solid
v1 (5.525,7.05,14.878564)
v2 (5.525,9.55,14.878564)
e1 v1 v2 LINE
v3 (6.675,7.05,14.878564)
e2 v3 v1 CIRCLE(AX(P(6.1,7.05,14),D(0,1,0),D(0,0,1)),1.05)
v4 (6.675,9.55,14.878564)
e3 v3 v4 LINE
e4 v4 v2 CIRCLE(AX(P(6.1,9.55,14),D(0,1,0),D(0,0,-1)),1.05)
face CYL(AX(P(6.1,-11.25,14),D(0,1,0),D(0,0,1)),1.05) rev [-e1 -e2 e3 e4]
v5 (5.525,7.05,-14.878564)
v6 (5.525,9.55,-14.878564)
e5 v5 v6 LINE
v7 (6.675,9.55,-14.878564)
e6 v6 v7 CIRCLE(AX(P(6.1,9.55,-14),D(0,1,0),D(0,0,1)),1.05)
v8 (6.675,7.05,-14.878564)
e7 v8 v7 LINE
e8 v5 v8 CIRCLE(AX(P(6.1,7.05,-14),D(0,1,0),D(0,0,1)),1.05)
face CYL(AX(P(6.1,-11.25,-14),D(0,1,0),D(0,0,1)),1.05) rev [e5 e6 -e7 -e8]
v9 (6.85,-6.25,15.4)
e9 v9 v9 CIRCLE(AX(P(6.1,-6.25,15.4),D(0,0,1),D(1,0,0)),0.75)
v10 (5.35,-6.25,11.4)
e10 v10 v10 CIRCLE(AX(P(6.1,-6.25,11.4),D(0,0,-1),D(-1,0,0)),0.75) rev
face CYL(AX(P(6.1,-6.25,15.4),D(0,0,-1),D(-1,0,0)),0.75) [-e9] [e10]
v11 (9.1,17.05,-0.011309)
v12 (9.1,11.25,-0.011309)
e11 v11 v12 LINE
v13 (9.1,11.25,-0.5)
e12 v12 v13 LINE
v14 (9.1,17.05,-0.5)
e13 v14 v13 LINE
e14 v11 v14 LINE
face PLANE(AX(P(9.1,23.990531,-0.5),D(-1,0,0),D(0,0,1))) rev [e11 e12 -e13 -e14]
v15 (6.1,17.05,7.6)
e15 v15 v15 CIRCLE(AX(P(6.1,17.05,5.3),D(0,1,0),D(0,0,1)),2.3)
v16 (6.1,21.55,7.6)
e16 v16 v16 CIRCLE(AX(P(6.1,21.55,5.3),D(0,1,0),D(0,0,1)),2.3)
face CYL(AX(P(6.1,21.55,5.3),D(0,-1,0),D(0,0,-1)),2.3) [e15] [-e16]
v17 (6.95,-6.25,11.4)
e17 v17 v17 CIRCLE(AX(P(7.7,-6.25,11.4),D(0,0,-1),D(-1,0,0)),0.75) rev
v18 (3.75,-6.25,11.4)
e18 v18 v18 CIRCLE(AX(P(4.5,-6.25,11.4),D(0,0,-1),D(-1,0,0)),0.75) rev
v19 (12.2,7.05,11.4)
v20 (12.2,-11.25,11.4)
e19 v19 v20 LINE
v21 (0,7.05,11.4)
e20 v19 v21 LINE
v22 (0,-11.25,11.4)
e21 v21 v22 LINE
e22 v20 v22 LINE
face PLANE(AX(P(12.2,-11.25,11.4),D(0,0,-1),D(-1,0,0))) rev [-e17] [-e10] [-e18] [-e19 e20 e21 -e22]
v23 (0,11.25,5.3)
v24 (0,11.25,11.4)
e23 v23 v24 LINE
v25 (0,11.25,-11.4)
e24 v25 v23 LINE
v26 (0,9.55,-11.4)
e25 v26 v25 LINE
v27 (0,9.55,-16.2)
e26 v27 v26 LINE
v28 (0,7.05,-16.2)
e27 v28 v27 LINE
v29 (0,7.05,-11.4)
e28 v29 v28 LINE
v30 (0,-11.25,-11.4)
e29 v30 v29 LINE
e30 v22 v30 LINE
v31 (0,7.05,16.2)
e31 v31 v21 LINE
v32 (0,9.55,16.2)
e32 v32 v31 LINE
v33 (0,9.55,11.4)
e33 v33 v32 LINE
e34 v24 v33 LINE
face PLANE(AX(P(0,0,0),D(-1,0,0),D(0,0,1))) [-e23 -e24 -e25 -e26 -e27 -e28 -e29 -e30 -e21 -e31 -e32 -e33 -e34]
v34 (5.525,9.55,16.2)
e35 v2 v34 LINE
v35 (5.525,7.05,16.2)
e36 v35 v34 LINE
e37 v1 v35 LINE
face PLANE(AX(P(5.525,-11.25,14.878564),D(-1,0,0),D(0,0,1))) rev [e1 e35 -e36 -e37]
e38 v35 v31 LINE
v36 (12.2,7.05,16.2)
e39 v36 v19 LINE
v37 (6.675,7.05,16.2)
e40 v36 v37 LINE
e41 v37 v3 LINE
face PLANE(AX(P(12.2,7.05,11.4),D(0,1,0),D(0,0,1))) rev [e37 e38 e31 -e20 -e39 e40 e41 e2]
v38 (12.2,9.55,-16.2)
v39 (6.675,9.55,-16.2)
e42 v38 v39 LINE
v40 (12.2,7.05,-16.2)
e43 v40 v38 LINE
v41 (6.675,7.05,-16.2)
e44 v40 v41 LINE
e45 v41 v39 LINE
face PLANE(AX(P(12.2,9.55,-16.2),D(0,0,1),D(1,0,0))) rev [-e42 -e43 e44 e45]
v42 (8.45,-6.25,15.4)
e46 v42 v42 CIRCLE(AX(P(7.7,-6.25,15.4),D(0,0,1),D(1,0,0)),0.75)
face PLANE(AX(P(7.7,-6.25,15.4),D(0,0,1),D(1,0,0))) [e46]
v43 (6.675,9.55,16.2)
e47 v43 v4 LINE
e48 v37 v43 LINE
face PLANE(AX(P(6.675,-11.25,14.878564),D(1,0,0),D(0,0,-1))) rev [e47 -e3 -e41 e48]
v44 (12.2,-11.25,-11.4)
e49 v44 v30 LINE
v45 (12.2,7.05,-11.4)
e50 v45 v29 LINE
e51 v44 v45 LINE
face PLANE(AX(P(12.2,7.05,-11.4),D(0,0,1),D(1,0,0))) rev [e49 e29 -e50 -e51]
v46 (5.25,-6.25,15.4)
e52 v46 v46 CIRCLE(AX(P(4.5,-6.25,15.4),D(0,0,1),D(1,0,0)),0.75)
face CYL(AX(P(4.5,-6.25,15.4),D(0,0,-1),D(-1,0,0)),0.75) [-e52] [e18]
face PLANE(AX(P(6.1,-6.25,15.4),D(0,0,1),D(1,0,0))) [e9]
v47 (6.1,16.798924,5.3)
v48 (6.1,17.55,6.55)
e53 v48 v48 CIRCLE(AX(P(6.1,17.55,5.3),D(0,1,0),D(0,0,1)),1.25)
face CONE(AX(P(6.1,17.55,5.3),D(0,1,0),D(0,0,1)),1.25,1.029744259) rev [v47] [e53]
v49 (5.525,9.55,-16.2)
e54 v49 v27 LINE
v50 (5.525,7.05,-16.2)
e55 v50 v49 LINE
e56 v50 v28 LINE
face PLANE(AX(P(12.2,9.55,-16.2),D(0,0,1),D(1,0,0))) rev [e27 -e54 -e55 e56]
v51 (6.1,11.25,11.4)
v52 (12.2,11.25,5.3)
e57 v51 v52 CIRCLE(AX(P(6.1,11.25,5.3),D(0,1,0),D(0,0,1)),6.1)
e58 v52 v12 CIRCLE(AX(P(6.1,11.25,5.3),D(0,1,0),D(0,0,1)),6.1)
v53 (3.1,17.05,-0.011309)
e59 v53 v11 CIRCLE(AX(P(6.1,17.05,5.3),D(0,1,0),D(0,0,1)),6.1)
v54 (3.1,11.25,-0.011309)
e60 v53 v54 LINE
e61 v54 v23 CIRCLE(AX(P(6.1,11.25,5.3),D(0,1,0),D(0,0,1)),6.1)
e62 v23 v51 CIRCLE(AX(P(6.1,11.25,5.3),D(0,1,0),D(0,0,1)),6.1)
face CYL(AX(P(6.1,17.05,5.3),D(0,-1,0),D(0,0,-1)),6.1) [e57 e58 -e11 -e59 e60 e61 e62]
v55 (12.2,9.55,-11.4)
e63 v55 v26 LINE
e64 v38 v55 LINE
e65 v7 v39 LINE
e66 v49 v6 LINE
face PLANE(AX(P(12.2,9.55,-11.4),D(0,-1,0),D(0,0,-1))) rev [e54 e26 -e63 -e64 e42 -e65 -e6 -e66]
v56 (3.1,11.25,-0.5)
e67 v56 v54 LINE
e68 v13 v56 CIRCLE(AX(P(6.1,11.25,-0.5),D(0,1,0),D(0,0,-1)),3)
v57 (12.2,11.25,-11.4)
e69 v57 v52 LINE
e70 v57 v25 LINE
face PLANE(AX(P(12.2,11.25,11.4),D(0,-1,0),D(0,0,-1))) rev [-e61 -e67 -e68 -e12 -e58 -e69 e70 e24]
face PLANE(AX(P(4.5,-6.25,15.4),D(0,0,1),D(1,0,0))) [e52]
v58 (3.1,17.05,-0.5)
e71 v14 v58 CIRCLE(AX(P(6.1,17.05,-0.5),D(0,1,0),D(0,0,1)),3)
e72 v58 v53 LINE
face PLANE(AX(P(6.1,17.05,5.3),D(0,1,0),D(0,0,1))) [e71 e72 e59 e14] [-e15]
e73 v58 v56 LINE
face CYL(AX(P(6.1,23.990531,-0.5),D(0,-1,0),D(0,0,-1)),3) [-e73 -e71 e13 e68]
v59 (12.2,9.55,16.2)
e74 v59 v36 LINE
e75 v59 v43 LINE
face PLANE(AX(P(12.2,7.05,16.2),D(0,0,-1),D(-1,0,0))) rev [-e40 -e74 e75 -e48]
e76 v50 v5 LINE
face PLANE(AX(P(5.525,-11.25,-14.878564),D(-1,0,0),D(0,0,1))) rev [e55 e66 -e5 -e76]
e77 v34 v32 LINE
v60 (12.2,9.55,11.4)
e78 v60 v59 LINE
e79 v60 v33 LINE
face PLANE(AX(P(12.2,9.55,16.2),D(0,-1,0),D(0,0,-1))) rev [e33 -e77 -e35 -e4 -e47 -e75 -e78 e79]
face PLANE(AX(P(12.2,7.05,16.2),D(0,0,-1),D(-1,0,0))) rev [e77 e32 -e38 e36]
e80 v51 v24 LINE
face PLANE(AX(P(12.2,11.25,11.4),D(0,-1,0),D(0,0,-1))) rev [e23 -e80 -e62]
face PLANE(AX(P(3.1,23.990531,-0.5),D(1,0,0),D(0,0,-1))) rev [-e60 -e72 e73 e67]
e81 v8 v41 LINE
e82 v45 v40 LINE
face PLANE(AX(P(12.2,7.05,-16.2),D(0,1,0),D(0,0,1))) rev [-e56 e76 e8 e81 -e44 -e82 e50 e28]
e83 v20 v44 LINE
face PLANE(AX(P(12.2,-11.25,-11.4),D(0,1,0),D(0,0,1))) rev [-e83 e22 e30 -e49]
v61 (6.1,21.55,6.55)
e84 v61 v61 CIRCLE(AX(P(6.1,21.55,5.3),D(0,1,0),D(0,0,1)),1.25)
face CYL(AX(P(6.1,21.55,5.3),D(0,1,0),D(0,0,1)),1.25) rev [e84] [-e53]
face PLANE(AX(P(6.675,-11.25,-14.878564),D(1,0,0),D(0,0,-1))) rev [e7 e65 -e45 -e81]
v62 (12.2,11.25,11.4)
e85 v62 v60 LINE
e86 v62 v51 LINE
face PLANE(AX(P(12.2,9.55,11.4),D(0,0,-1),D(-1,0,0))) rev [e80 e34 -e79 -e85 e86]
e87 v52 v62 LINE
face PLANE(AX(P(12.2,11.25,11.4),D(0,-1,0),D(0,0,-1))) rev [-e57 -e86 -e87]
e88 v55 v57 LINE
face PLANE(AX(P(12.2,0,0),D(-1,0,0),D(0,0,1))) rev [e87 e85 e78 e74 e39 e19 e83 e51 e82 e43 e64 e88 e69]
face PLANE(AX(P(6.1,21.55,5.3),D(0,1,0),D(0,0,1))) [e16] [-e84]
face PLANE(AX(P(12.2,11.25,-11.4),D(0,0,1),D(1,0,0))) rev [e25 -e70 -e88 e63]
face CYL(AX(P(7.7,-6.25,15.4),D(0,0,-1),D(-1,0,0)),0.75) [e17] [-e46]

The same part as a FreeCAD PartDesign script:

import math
import FreeCAD as App
import Part
import Sketcher
from FreeCAD import Vector
Q = App.Units.Quantity


def add_polygon(sketch, points):
    """Adds a closed chain of lines whose ends are joined by coincident constraints."""
    first, n = sketch.GeometryCount, len(points)
    for a, b in zip(points, points[1:] + points[:1]):
        sketch.addGeometry(Part.LineSegment(App.Vector(*a, 0), App.Vector(*b, 0)), False)
    for i in range(n):
        sketch.addConstraint(Sketcher.Constraint("Coincident", first + i, 2, first + (i + 1) % n, 1))

doc = App.newDocument("Part")
body = doc.addObject("PartDesign::Body", "Body")

# Sketch on YZ plane
sketch1 = body.newObject("Sketcher::SketchObject", "Sketch")
sketch1.AttachmentSupport = (doc.getObject("YZ_Plane"), [""])
sketch1.MapMode = "FlatFace"
add_polygon(sketch1, [(7.05, 11.4), (-11.25, 11.4), (-11.25, -11.4), (7.05, -11.4), (7.05, -16.2), (9.55, -16.2), (9.55, -11.4), (11.25, -11.4), (11.25, 11.4), (9.55, 11.4), (9.55, 16.2), (7.05, 16.2)])  # lines 0-11
sketch1.addConstraint([
    Sketcher.Constraint("Horizontal", 0),
    Sketcher.Constraint("Vertical", 1),
    Sketcher.Constraint("Horizontal", 2),
    Sketcher.Constraint("Vertical", 3),
    Sketcher.Constraint("Horizontal", 4),
    Sketcher.Constraint("Vertical", 5),
    Sketcher.Constraint("Horizontal", 6),
    Sketcher.Constraint("Vertical", 7),
    Sketcher.Constraint("Horizontal", 8),
    Sketcher.Constraint("Vertical", 9),
    Sketcher.Constraint("Horizontal", 10),
    Sketcher.Constraint("Vertical", 11),
    Sketcher.Constraint("Symmetric", 0, 2, 6, 2, -1, 1),
    Sketcher.Constraint("Symmetric", 5, 2, 8, 2, -1),
    Sketcher.Constraint("Symmetric", 3, 2, 10, 2, -1),
    Sketcher.Constraint("Horizontal", 2, 2, 5, 2),
    Sketcher.Constraint("DistanceX", 0, 2, 0, 1, Q("18.3 mm")),
    Sketcher.Constraint("DistanceX", 4, 1, 4, 2, Q("2.5 mm")),
    Sketcher.Constraint("DistanceX", 6, 1, 6, 2, Q("1.7 mm")),
    Sketcher.Constraint("DistanceY", 1, 2, 1, 1, Q("22.8 mm")),
    Sketcher.Constraint("DistanceY", 3, 2, 3, 1, Q("4.8 mm")),
])
pad1 = body.newObject("PartDesign::Pad", "Pad")
pad1.Profile = sketch1
pad1.Length = 12.2

# Sketch on XZ plane
sketch2 = body.newObject("Sketcher::SketchObject", "Sketch001")
sketch2.AttachmentSupport = (doc.getObject("XZ_Plane"), [""])
sketch2.MapMode = "FlatFace"
sketch2.AttachmentOffset = App.Placement(Vector(0, 0, -11.25), App.Rotation())
sketch2.addGeometry(Part.Circle(Vector(6.1, 5.3, 0), Vector(0, 0, 1), 6.1), False)
sketch2.addConstraint([
    Sketcher.Constraint("Diameter", 0, Q("12.2 mm")),
    Sketcher.Constraint("DistanceX", -1, 1, 0, 3, Q("6.1 mm")),
    Sketcher.Constraint("DistanceY", -1, 1, 0, 3, Q("5.3 mm")),
])
pad2 = body.newObject("PartDesign::Pad", "Pad001")
pad2.Profile = sketch2
pad2.Length = 5.8
pad2.Reversed = True

# Sketch on XZ plane
sketch3 = body.newObject("Sketcher::SketchObject", "Sketch002")
sketch3.AttachmentSupport = (doc.getObject("XZ_Plane"), [""])
sketch3.MapMode = "FlatFace"
sketch3.AttachmentOffset = App.Placement(Vector(0, 0, -11.25), App.Rotation())
sketch3.addGeometry([
    Part.LineSegment(Vector(3.1, -0.5, 0), Vector(3.1, -0.011309, 0)),
    Part.ArcOfCircle(Part.Circle(Vector(6.1, 5.3, 0), Vector(0, 0, 1), 6.1), math.radians(-119.459175), math.radians(-60.540825)),
    Part.LineSegment(Vector(9.1, -0.011309, 0), Vector(9.1, -0.5, 0)),
    Part.ArcOfCircle(Part.Circle(Vector(6.1, -0.5, 0), Vector(0, 0, 1), 3), math.radians(180), math.radians(360)),
], False)
sketch3.addConstraint([
    Sketcher.Constraint("Coincident", 0, 2, 1, 1),
    Sketcher.Constraint("Coincident", 1, 2, 2, 1),
    Sketcher.Constraint("Tangent", 2, 2, 3, 2),
    Sketcher.Constraint("Tangent", 3, 1, 0, 1),
    Sketcher.Constraint("Vertical", 0),
    Sketcher.Constraint("Vertical", 2),
    Sketcher.Constraint("Horizontal", 0, 2, 1, 2),
    Sketcher.Constraint("Radius", 3, Q("3 mm")),
    Sketcher.Constraint("Radius", 1, Q("6.1 mm")),
    Sketcher.Constraint("DistanceX", -1, 1, 1, 3, Q("6.1 mm")),
    Sketcher.Constraint("DistanceY", -1, 1, 1, 3, Q("5.3 mm")),
    Sketcher.Constraint("DistanceY", 3, 3, -1, 1, Q("0.5 mm")),
])
pad3 = body.newObject("PartDesign::Pad", "Pad002")
pad3.Profile = sketch3
pad3.Length = 5.8
pad3.Reversed = True

# Sketch on XZ plane
sketch4 = body.newObject("Sketcher::SketchObject", "Sketch003")
sketch4.AttachmentSupport = (doc.getObject("XZ_Plane"), [""])
sketch4.MapMode = "FlatFace"
sketch4.AttachmentOffset = App.Placement(Vector(0, 0, -9.55), App.Rotation())
sketch4.addGeometry([
    Part.LineSegment(Vector(5.525, 16.2, 0), Vector(6.675, 16.2, 0)),  # 0
    Part.LineSegment(Vector(6.675, 16.2, 0), Vector(6.675, 14.878564, 0)),  # 1
    Part.ArcOfCircle(Part.Circle(Vector(6.1, 14, 0), Vector(0, 0, 1), 1.05), math.radians(123.203823), math.radians(416.796177)),  # 2
    Part.LineSegment(Vector(5.525, 14.878564, 0), Vector(5.525, 16.2, 0)),  # 3
    Part.LineSegment(Vector(5.525, -16.2, 0), Vector(5.525, -14.878564, 0)),  # 4
    Part.ArcOfCircle(Part.Circle(Vector(6.1, -14, 0), Vector(0, 0, 1), 1.05), math.radians(-56.796177), math.radians(236.796177)),  # 5
    Part.LineSegment(Vector(6.675, -14.878564, 0), Vector(6.675, -16.2, 0)),  # 6
    Part.LineSegment(Vector(6.675, -16.2, 0), Vector(5.525, -16.2, 0)),  # 7
], False)
sketch4.addConstraint([
    Sketcher.Constraint("Coincident", 0, 2, 1, 1),
    Sketcher.Constraint("Coincident", 1, 2, 2, 2),
    Sketcher.Constraint("Coincident", 2, 1, 3, 1),
    Sketcher.Constraint("Coincident", 3, 2, 0, 1),
    Sketcher.Constraint("Coincident", 4, 2, 5, 2),
    Sketcher.Constraint("Coincident", 5, 1, 6, 1),
    Sketcher.Constraint("Coincident", 6, 2, 7, 1),
    Sketcher.Constraint("Coincident", 7, 2, 4, 1),
    Sketcher.Constraint("Horizontal", 0),
    Sketcher.Constraint("Vertical", 1),
    Sketcher.Constraint("Vertical", 3),
    Sketcher.Constraint("Vertical", 4),
    Sketcher.Constraint("Vertical", 6),
    Sketcher.Constraint("Horizontal", 7),
    Sketcher.Constraint("Equal", 2, 5),
    Sketcher.Constraint("Symmetric", 2, 3, 5, 3, -1),
    Sketcher.Constraint("Symmetric", 0, 2, 6, 2, -1),
    Sketcher.Constraint("Horizontal", 1, 2, 2, 1),
    Sketcher.Constraint("Horizontal", 4, 2, 5, 1),
    Sketcher.Constraint("Radius", 2, Q("1.05 mm")),
    Sketcher.Constraint("DistanceY", -1, 1, 2, 3, Q("14 mm")),
    Sketcher.Constraint("DistanceX", 0, 1, 0, 2, Q("1.15 mm")),
    Sketcher.Constraint("DistanceX", -1, 1, 2, 3, Q("6.1 mm")),
    Sketcher.Constraint("DistanceY", -1, 1, 0, 2, Q("16.2 mm")),
])
pocket1 = body.newObject("PartDesign::Pocket", "Pocket")
pocket1.Profile = sketch4
pocket1.Type = "ThroughAll"
pocket1.Reversed = True

# Sketch on XY plane
sketch5 = body.newObject("Sketcher::SketchObject", "Sketch004")
sketch5.AttachmentSupport = (doc.getObject("XY_Plane"), [""])
sketch5.MapMode = "FlatFace"
sketch5.AttachmentOffset = App.Placement(Vector(0, 0, 11.4), App.Rotation())
sketch5.addGeometry([
    Part.Circle(Vector(6.1, -6.25, 0), Vector(0, 0, 1), 0.75),
    Part.Circle(Vector(7.7, -6.25, 0), Vector(0, 0, 1), 0.75),
    Part.Circle(Vector(4.5, -6.25, 0), Vector(0, 0, 1), 0.75),
], False)
sketch5.addConstraint([
    Sketcher.Constraint("Equal", 0, 1),
    Sketcher.Constraint("Equal", 1, 2),
    Sketcher.Constraint("Horizontal", 0, 3, 1, 3),
    Sketcher.Constraint("Horizontal", 1, 3, 2, 3),
    Sketcher.Constraint("Diameter", 0, Q("1.5 mm")),
    Sketcher.Constraint("DistanceX", -1, 1, 0, 3, Q("6.1 mm")),
    Sketcher.Constraint("DistanceX", -1, 1, 1, 3, Q("7.7 mm")),
    Sketcher.Constraint("DistanceX", -1, 1, 2, 3, Q("4.5 mm")),
    Sketcher.Constraint("DistanceY", 0, 3, -1, 1, Q("6.25 mm")),
])
pad4 = body.newObject("PartDesign::Pad", "Pad003")
pad4.Profile = sketch5
pad4.Length = 4

# Sketch on XZ plane
sketch6 = body.newObject("Sketcher::SketchObject", "Sketch005")
sketch6.AttachmentSupport = (doc.getObject("XZ_Plane"), [""])
sketch6.MapMode = "FlatFace"
sketch6.AttachmentOffset = App.Placement(Vector(0, 0, -17.05), App.Rotation())
sketch6.addGeometry(Part.Circle(Vector(6.1, 5.3, 0), Vector(0, 0, 1), 2.3), False)
sketch6.addConstraint([
    Sketcher.Constraint("Diameter", 0, Q("4.6 mm")),
    Sketcher.Constraint("DistanceX", -1, 1, 0, 3, Q("6.1 mm")),
    Sketcher.Constraint("DistanceY", -1, 1, 0, 3, Q("5.3 mm")),
])
pad5 = body.newObject("PartDesign::Pad", "Pad004")
pad5.Profile = sketch6
pad5.Length = 4.5
pad5.Reversed = True

# Sketch on XZ plane
sketch7 = body.newObject("Sketcher::SketchObject", "Sketch006")
sketch7.AttachmentSupport = (doc.getObject("XZ_Plane"), [""])
sketch7.MapMode = "FlatFace"
sketch7.AttachmentOffset = App.Placement(Vector(0, 0, -21.55), App.Rotation())
sketch7.addGeometry(Part.Circle(Vector(6.1, 5.3, 0), Vector(0, 0, 1), 1.25), False)
sketch7.addConstraint([
    Sketcher.Constraint("Diameter", 0, Q("2.5 mm")),
    Sketcher.Constraint("DistanceX", -1, 1, 0, 3, Q("6.1 mm")),
    Sketcher.Constraint("DistanceY", -1, 1, 0, 3, Q("5.3 mm")),
])
doc.recompute()
hole = body.newObject("PartDesign::Hole", "Hole")
hole.Profile = sketch7
hole.ThreadType = "None"
hole.Diameter = 2.5
hole.DepthType = "Dimension"
hole.Depth = 4
hole.DrillPoint = "Angled"
hole.DrillPointAngle = 118
hole.Reversed = True

doc.recompute()
